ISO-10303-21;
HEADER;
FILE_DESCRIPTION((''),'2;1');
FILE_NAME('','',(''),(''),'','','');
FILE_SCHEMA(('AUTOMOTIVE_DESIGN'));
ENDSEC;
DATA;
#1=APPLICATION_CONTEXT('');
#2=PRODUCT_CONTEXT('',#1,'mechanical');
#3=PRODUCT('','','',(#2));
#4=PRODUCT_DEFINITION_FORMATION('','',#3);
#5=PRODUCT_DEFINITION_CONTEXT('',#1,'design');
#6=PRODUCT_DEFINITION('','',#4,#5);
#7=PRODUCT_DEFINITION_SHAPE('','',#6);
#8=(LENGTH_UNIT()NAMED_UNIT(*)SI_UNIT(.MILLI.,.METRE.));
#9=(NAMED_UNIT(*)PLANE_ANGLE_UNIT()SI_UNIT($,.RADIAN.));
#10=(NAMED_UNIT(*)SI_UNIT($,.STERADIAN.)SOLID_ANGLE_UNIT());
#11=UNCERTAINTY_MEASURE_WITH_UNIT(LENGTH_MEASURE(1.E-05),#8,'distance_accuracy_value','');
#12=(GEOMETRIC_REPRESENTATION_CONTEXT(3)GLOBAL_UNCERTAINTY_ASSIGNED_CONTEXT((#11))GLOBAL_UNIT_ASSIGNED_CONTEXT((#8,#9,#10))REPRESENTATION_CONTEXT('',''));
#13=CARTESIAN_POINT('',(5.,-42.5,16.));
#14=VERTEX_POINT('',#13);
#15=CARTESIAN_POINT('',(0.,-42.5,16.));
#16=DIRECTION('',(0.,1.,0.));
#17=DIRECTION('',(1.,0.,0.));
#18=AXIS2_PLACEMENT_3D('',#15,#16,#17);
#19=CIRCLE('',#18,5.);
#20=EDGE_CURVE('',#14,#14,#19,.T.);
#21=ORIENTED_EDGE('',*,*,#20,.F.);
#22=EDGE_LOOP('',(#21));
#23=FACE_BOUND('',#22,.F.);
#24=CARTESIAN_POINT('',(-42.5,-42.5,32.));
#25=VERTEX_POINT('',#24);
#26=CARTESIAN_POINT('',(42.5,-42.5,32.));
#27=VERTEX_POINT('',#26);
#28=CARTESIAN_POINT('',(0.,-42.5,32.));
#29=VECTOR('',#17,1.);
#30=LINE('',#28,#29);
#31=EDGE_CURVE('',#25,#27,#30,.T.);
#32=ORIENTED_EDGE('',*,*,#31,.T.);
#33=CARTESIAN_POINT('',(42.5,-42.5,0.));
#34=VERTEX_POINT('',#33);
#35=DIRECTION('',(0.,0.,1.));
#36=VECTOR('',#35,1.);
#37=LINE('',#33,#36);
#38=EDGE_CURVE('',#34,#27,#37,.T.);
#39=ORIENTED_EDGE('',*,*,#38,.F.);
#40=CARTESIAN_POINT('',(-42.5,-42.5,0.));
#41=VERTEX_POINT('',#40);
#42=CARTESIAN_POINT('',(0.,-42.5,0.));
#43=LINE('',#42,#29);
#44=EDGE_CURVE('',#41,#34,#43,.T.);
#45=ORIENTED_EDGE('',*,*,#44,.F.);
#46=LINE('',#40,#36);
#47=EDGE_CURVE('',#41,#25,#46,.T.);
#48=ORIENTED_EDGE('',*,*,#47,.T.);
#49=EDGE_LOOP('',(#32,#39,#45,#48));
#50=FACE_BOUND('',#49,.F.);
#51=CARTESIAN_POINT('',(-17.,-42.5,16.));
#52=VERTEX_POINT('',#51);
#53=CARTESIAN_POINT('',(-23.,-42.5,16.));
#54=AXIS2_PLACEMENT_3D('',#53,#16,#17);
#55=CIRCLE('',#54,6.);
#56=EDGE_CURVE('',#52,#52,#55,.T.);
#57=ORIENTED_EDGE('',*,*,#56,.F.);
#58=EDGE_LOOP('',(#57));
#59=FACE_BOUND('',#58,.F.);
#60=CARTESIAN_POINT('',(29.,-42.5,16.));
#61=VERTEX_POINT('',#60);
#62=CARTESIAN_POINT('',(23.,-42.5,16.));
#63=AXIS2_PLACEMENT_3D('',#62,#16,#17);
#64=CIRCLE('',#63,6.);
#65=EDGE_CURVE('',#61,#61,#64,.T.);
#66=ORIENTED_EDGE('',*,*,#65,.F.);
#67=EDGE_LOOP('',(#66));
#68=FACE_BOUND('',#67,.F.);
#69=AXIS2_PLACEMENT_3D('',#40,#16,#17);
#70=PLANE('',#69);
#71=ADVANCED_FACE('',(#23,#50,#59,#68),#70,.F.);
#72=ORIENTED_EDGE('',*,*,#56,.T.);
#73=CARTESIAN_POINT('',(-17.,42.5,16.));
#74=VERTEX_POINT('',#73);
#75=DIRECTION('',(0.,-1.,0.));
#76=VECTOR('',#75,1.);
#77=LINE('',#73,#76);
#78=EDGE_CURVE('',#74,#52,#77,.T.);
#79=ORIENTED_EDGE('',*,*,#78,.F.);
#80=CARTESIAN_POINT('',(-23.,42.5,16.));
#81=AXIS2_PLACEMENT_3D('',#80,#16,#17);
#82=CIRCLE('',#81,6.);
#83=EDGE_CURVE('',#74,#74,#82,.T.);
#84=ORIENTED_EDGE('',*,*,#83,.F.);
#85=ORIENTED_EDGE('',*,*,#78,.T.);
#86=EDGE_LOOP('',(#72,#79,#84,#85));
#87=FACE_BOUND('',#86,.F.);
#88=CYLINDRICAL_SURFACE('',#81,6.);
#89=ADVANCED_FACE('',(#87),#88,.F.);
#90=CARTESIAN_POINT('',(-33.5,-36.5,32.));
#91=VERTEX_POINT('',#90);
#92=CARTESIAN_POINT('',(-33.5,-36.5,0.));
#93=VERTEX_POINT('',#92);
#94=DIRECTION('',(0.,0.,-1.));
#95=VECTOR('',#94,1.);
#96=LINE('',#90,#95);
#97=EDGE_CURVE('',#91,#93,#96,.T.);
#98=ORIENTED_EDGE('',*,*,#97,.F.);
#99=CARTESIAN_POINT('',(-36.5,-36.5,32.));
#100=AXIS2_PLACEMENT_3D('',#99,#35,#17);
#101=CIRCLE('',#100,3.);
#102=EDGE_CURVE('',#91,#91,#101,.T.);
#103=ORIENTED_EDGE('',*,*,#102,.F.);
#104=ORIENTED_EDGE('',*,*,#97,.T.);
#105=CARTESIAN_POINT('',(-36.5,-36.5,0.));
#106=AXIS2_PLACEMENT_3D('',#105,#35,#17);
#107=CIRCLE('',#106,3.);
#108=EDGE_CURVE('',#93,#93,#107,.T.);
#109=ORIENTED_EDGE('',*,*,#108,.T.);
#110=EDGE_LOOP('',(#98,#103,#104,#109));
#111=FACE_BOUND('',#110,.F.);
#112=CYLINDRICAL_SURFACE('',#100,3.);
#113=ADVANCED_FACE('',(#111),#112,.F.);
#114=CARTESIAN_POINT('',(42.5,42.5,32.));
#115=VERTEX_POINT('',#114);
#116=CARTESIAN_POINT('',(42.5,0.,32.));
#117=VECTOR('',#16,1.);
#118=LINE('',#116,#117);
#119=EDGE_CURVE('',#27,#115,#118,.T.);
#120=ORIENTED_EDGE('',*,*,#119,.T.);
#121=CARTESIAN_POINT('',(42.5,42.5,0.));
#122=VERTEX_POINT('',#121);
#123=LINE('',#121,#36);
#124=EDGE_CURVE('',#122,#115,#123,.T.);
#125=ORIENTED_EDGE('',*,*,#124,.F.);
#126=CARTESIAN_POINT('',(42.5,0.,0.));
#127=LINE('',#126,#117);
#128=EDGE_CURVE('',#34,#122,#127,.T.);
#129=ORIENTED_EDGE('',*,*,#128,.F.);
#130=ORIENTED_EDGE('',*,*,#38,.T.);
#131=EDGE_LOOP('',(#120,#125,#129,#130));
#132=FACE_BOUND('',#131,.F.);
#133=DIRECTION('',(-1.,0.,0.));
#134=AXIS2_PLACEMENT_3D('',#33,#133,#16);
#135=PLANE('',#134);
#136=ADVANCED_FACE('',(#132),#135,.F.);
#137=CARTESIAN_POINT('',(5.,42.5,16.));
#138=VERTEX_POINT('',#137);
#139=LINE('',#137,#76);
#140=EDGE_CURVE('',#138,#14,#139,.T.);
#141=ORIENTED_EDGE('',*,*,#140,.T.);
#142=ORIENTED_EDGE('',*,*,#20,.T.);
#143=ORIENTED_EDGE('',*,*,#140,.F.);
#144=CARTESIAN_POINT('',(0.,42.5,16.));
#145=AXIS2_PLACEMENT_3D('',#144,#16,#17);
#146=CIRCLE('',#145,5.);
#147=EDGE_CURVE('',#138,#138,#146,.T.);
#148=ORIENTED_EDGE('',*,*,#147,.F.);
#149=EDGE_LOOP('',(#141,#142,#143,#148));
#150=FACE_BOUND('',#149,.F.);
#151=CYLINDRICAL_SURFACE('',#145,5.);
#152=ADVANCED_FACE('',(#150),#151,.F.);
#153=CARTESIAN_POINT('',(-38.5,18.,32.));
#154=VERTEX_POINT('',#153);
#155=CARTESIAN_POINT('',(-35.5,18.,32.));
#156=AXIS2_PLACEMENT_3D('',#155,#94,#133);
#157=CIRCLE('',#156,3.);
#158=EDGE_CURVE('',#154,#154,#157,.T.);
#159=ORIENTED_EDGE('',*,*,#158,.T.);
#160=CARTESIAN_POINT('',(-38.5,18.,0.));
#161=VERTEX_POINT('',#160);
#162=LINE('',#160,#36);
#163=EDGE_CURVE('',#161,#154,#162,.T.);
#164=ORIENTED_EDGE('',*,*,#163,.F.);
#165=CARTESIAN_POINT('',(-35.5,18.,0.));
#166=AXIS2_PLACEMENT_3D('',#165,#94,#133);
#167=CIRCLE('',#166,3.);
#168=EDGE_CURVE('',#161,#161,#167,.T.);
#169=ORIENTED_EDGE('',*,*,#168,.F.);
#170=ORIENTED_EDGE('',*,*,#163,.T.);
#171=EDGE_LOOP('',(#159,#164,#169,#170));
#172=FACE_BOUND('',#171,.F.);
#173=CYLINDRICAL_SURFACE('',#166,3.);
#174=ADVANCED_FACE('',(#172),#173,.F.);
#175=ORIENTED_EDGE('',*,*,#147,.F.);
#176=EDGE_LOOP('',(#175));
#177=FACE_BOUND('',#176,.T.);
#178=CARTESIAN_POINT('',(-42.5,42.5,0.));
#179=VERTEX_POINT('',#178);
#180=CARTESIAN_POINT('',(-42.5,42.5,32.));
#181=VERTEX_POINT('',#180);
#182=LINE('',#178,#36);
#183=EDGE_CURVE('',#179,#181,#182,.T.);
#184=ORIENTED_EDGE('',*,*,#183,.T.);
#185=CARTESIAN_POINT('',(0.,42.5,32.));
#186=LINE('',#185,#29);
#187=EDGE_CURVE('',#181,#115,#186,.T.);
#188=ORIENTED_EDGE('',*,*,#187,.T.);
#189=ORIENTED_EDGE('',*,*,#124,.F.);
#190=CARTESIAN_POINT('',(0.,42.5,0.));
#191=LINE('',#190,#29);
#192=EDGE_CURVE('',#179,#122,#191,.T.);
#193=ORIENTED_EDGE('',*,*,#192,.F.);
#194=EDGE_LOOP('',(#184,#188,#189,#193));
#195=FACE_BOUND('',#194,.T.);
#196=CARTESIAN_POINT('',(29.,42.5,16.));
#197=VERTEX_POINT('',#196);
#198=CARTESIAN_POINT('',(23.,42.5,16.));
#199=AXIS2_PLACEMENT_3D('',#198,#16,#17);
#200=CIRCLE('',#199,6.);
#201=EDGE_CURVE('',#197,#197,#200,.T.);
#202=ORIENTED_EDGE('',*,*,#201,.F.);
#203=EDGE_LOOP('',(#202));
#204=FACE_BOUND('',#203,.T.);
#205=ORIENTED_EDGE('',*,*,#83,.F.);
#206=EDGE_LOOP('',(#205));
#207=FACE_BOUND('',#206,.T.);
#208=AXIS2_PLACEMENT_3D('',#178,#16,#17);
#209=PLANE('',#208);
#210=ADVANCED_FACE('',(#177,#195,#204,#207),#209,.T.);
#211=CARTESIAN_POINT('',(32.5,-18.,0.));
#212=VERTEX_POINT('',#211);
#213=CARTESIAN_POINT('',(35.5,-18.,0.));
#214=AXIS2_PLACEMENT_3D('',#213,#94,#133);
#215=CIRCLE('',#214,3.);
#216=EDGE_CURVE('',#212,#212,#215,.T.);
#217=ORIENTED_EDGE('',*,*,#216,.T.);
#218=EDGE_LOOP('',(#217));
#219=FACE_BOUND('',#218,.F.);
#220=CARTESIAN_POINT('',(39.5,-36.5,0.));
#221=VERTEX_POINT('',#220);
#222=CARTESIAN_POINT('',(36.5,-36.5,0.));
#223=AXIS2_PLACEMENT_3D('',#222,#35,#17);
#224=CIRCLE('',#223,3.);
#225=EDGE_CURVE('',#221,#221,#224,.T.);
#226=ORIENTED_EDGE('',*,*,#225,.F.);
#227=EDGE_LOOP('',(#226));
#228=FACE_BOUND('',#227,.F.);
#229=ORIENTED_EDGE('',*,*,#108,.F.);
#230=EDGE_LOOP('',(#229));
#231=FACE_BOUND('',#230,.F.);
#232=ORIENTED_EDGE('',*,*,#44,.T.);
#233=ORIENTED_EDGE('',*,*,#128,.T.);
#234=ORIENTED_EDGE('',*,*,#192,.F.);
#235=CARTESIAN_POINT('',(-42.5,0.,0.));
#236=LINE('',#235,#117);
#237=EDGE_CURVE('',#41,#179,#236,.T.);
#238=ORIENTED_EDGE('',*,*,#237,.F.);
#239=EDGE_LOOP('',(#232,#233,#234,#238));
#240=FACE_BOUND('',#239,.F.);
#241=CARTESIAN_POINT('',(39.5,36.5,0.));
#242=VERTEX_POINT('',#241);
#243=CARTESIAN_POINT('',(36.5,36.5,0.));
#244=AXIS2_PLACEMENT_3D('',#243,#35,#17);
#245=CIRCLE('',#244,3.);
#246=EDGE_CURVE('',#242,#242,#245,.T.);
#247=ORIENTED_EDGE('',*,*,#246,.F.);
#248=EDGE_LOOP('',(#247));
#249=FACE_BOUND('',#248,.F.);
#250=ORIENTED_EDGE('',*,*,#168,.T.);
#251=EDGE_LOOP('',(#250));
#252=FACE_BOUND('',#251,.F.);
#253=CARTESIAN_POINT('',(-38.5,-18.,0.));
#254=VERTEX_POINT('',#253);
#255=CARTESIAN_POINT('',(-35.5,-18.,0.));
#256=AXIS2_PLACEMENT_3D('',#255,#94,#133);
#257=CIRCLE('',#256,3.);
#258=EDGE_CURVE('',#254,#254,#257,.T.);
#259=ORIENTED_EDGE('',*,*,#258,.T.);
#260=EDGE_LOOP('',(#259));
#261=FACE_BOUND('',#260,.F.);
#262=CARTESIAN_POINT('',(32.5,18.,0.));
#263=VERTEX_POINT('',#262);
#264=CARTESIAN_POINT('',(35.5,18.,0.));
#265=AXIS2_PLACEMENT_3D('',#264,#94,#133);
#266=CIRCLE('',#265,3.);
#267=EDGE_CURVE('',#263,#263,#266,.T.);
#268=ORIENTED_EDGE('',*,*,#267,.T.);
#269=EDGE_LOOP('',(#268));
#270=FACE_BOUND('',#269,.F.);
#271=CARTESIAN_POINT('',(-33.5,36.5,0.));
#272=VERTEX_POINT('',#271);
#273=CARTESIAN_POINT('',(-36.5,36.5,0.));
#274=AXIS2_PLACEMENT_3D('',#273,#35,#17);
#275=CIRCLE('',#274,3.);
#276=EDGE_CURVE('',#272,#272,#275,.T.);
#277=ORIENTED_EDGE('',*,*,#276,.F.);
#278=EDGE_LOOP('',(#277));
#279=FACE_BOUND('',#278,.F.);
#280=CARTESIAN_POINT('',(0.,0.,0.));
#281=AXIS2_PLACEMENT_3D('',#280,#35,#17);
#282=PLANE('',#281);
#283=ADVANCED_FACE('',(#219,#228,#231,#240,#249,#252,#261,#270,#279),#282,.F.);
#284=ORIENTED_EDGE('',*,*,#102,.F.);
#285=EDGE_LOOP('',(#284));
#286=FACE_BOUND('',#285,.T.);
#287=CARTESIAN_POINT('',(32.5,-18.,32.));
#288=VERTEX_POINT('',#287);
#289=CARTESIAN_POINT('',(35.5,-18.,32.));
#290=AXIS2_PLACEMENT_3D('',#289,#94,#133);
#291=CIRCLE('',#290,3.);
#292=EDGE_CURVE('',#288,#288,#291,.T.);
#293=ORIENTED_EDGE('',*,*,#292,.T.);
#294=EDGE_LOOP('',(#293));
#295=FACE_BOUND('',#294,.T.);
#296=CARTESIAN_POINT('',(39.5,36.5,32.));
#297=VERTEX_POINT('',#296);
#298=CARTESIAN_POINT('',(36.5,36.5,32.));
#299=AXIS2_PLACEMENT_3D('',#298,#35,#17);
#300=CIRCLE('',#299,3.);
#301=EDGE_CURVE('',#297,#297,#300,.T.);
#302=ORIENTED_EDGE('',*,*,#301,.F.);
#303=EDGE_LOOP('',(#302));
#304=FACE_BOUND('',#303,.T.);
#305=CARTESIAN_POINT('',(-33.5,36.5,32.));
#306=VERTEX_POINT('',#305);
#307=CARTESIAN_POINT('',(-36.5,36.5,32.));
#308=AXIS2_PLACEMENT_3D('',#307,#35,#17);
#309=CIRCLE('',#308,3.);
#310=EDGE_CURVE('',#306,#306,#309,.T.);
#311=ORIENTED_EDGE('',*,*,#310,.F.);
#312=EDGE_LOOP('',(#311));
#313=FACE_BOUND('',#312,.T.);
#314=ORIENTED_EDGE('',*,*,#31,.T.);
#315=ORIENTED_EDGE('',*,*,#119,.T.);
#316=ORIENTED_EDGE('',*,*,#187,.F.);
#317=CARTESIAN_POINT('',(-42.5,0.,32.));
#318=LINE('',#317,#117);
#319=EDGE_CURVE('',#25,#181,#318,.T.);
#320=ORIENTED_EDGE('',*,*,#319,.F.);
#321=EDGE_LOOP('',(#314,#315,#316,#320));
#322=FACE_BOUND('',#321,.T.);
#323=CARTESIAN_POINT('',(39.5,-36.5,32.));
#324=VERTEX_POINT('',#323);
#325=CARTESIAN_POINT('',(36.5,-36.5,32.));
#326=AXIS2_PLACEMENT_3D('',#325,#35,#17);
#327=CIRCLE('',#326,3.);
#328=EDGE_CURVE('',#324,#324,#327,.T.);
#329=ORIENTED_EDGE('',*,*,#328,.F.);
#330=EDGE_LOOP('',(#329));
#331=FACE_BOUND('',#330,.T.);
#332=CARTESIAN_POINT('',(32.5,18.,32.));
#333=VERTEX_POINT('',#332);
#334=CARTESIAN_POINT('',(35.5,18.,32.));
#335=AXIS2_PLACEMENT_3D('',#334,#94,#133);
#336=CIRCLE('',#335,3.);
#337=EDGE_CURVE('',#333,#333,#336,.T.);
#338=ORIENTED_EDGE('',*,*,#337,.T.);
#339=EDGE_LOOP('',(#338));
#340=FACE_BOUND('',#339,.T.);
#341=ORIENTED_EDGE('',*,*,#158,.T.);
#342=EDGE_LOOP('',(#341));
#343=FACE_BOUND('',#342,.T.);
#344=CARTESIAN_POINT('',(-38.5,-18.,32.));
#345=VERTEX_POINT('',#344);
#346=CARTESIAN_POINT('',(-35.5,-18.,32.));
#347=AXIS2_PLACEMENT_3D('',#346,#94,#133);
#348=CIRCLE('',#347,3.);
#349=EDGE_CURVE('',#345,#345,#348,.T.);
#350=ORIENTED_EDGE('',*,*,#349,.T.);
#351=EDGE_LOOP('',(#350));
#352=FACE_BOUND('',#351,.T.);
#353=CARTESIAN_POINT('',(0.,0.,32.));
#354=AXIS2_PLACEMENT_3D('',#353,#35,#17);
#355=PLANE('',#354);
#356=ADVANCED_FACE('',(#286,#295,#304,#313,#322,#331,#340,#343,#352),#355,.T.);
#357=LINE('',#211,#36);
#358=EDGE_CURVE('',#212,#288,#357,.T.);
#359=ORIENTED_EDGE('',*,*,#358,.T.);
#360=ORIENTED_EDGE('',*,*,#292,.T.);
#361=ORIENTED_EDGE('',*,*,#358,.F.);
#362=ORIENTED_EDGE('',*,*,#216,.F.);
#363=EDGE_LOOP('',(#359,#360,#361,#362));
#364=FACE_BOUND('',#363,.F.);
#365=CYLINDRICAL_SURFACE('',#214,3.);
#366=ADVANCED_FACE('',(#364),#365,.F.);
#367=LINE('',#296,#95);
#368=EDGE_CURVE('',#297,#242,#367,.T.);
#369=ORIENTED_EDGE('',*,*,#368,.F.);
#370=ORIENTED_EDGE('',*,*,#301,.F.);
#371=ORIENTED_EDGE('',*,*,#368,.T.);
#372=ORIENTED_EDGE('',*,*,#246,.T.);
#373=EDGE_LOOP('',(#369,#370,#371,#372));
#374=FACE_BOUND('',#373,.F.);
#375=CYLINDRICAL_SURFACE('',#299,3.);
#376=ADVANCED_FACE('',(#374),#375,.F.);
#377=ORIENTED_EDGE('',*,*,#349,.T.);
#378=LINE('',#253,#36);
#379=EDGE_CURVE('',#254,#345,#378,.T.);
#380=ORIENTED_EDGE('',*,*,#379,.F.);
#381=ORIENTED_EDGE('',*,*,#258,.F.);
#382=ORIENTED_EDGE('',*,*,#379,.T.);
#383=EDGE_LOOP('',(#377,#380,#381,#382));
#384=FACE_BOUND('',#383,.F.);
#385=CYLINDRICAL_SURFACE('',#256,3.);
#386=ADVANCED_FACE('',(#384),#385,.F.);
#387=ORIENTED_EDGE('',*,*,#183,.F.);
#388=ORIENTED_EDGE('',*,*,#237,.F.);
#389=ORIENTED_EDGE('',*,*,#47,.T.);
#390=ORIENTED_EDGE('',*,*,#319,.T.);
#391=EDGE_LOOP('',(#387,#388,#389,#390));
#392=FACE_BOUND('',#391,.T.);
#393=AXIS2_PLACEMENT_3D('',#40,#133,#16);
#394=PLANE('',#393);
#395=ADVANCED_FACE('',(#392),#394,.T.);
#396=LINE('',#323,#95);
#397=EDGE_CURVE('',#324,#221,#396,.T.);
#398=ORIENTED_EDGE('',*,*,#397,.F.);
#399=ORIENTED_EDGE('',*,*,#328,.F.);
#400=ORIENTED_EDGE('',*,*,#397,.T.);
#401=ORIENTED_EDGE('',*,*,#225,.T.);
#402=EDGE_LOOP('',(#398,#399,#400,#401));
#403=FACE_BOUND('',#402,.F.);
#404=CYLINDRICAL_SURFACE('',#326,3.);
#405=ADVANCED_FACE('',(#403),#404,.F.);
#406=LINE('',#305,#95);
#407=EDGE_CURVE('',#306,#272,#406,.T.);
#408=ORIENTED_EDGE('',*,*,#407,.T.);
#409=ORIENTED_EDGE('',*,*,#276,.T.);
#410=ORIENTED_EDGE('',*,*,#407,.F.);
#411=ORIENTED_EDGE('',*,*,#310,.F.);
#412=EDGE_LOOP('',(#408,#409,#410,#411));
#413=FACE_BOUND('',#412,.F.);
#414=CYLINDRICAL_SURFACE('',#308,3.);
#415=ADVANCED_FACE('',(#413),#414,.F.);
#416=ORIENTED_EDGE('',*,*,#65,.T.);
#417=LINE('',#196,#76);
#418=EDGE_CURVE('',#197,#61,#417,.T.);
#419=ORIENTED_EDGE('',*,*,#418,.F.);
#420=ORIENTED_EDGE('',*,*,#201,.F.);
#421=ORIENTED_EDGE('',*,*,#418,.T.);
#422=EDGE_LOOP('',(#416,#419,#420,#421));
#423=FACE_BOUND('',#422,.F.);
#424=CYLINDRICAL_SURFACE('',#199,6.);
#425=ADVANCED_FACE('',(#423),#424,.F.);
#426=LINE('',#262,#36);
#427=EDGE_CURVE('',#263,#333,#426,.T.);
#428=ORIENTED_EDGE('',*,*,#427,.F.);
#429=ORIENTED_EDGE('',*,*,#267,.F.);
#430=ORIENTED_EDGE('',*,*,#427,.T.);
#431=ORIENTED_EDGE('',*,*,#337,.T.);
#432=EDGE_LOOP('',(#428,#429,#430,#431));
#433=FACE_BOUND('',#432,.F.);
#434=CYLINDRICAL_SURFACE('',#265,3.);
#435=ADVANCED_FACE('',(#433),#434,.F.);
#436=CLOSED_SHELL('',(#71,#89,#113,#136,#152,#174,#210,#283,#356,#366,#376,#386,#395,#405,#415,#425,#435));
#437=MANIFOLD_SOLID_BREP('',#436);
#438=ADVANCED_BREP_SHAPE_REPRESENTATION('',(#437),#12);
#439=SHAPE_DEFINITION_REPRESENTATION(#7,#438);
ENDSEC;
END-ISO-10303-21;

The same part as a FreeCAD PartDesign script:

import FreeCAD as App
import Part
import Sketcher
from FreeCAD import Vector


def add_polygon(sketch, points):
    """Adds a closed chain of lines whose ends are joined by coincident constraints."""
    first, n = sketch.GeometryCount, len(points)
    for a, b in zip(points, points[1:] + points[:1]):
        sketch.addGeometry(Part.LineSegment(App.Vector(*a, 0), App.Vector(*b, 0)), False)
    for i in range(n):
        sketch.addConstraint(Sketcher.Constraint("Coincident", first + i, 2, first + (i + 1) % n, 1))

doc = App.newDocument("Part")
body = doc.addObject("PartDesign::Body", "Body")

sketch1 = body.newObject("Sketcher::SketchObject", "Sketch")
sketch1.AttachmentSupport = (doc.getObject("XY_Plane"), [""])
sketch1.MapMode = "FlatFace"
add_polygon(sketch1, [(-42, 42), (-42, -42), (42, -42), (42, 42)])
sketch1.addConstraint([
    Sketcher.Constraint("Vertical", 0),
    Sketcher.Constraint("Horizontal", 1),
    Sketcher.Constraint("Vertical", 2),
    Sketcher.Constraint("Horizontal", 3),
    Sketcher.Constraint("Symmetric", 0, 2, 2, 2, -1, 1),
    Sketcher.Constraint("Equal", 3, 0),
    Sketcher.Constraint("DistanceX", 1, 1, 1, 2, 85.0),
])
pad1 = body.newObject("PartDesign::Pad", "Pad")
pad1.Profile = sketch1
pad1.Length = 32

sketch2 = body.newObject("Sketcher::SketchObject", "Sketch001")
sketch2.AttachmentSupport = (doc.getObject("XY_Plane"), [""])
sketch2.MapMode = "FlatFace"
sketch2.AttachmentOffset = App.Placement(Vector(0, 0, 32), App.Rotation())
sketch2.addGeometry([
    Part.Circle(Vector(-36.5, 36.5, 0), Vector(0, 0, 1), 3),
    Part.Circle(Vector(36.5, 36.5, 0), Vector(0, 0, 1), 3),
    Part.Circle(Vector(36.5, -36.5, 0), Vector(0, 0, 1), 3),
    Part.Circle(Vector(-36.5, -36.5, 0), Vector(0, 0, 1), 3),
], False)
sketch2.addConstraint([
    Sketcher.Constraint("Equal", 0, 1),
    Sketcher.Constraint("Equal", 1, 2),
    Sketcher.Constraint("Equal", 2, 3),
    Sketcher.Constraint("Symmetric", 0, 3, 2, 3, -1, 1),
    Sketcher.Constraint("Symmetric", 1, 3, 3, 3, -1, 1),
    Sketcher.Constraint("Symmetric", 0, 3, 1, 3, -2),
    Sketcher.Constraint("Diameter", 0, 6.0),
    Sketcher.Constraint("DistanceX", 0, 3, 1, 3, 73.0),
    Sketcher.Constraint("DistanceY", 2, 3, 1, 3, 73.0),
])
pocket1 = body.newObject("PartDesign::Pocket", "Pocket")
pocket1.Profile = sketch2
pocket1.Type = "ThroughAll"

sketch3 = body.newObject("Sketcher::SketchObject", "Sketch002")
sketch3.AttachmentSupport = (doc.getObject("XZ_Plane"), [""])
sketch3.MapMode = "FlatFace"
sketch3.AttachmentOffset = App.Placement(Vector(0, 0, -42.5), App.Rotation())
sketch3.addGeometry([
    Part.Circle(Vector(0, 16, 0), Vector(0, 0, 1), 5),
    Part.Circle(Vector(-23, 16, 0), Vector(0, 0, 1), 6),
    Part.Circle(Vector(23, 16, 0), Vector(0, 0, 1), 6),
], False)
sketch3.addConstraint([
    Sketcher.Constraint("Equal", 1, 2),
    Sketcher.Constraint("Symmetric", 1, 3, 2, 3, -2),
    Sketcher.Constraint("PointOnObject", 0, 3, -2),
    Sketcher.Constraint("Horizontal", 0, 3, 1, 3),
    Sketcher.Constraint("Diameter", 0, 10.0),
    Sketcher.Constraint("Diameter", 1, 12.0),
    Sketcher.Constraint("DistanceY", -1, 1, 0, 3, 16.0),
    Sketcher.Constraint("DistanceX", 1, 3, -1, 1, 23.0),
])
pocket2 = body.newObject("PartDesign::Pocket", "Pocket001")
pocket2.Profile = sketch3
pocket2.Type = "ThroughAll"
pocket2.Reversed = True

sketch4 = body.newObject("Sketcher::SketchObject", "Sketch003")
sketch4.AttachmentSupport = (doc.getObject("XY_Plane"), [""])
sketch4.MapMode = "FlatFace"
sketch4.addGeometry([
    Part.Circle(Vector(35.5, 18, 0), Vector(0, 0, 1), 3),
    Part.Circle(Vector(35.5, -18, 0), Vector(0, 0, 1), 3),
    Part.Circle(Vector(-35.5, -18, 0), Vector(0, 0, 1), 3),
    Part.Circle(Vector(-35.5, 18, 0), Vector(0, 0, 1), 3),
], False)
sketch4.addConstraint([
    Sketcher.Constraint("Equal", 0, 1),
    Sketcher.Constraint("Equal", 1, 2),
    Sketcher.Constraint("Equal", 2, 3),
    Sketcher.Constraint("Symmetric", 0, 3, 2, 3, -1, 1),
    Sketcher.Constraint("Symmetric", 1, 3, 3, 3, -1, 1),
    Sketcher.Constraint("Symmetric", 1, 3, 2, 3, -2),
    Sketcher.Constraint("Diameter", 0, 6.0),
    Sketcher.Constraint("DistanceY", -1, 1, 0, 3, 18.0),
    Sketcher.Constraint("DistanceX", 2, 3, 1, 3, 71.0),
])
pocket3 = body.newObject("PartDesign::Pocket", "Pocket002")
pocket3.Profile = sketch4
pocket3.Type = "ThroughAll"
pocket3.Reversed = True

doc.recompute()
